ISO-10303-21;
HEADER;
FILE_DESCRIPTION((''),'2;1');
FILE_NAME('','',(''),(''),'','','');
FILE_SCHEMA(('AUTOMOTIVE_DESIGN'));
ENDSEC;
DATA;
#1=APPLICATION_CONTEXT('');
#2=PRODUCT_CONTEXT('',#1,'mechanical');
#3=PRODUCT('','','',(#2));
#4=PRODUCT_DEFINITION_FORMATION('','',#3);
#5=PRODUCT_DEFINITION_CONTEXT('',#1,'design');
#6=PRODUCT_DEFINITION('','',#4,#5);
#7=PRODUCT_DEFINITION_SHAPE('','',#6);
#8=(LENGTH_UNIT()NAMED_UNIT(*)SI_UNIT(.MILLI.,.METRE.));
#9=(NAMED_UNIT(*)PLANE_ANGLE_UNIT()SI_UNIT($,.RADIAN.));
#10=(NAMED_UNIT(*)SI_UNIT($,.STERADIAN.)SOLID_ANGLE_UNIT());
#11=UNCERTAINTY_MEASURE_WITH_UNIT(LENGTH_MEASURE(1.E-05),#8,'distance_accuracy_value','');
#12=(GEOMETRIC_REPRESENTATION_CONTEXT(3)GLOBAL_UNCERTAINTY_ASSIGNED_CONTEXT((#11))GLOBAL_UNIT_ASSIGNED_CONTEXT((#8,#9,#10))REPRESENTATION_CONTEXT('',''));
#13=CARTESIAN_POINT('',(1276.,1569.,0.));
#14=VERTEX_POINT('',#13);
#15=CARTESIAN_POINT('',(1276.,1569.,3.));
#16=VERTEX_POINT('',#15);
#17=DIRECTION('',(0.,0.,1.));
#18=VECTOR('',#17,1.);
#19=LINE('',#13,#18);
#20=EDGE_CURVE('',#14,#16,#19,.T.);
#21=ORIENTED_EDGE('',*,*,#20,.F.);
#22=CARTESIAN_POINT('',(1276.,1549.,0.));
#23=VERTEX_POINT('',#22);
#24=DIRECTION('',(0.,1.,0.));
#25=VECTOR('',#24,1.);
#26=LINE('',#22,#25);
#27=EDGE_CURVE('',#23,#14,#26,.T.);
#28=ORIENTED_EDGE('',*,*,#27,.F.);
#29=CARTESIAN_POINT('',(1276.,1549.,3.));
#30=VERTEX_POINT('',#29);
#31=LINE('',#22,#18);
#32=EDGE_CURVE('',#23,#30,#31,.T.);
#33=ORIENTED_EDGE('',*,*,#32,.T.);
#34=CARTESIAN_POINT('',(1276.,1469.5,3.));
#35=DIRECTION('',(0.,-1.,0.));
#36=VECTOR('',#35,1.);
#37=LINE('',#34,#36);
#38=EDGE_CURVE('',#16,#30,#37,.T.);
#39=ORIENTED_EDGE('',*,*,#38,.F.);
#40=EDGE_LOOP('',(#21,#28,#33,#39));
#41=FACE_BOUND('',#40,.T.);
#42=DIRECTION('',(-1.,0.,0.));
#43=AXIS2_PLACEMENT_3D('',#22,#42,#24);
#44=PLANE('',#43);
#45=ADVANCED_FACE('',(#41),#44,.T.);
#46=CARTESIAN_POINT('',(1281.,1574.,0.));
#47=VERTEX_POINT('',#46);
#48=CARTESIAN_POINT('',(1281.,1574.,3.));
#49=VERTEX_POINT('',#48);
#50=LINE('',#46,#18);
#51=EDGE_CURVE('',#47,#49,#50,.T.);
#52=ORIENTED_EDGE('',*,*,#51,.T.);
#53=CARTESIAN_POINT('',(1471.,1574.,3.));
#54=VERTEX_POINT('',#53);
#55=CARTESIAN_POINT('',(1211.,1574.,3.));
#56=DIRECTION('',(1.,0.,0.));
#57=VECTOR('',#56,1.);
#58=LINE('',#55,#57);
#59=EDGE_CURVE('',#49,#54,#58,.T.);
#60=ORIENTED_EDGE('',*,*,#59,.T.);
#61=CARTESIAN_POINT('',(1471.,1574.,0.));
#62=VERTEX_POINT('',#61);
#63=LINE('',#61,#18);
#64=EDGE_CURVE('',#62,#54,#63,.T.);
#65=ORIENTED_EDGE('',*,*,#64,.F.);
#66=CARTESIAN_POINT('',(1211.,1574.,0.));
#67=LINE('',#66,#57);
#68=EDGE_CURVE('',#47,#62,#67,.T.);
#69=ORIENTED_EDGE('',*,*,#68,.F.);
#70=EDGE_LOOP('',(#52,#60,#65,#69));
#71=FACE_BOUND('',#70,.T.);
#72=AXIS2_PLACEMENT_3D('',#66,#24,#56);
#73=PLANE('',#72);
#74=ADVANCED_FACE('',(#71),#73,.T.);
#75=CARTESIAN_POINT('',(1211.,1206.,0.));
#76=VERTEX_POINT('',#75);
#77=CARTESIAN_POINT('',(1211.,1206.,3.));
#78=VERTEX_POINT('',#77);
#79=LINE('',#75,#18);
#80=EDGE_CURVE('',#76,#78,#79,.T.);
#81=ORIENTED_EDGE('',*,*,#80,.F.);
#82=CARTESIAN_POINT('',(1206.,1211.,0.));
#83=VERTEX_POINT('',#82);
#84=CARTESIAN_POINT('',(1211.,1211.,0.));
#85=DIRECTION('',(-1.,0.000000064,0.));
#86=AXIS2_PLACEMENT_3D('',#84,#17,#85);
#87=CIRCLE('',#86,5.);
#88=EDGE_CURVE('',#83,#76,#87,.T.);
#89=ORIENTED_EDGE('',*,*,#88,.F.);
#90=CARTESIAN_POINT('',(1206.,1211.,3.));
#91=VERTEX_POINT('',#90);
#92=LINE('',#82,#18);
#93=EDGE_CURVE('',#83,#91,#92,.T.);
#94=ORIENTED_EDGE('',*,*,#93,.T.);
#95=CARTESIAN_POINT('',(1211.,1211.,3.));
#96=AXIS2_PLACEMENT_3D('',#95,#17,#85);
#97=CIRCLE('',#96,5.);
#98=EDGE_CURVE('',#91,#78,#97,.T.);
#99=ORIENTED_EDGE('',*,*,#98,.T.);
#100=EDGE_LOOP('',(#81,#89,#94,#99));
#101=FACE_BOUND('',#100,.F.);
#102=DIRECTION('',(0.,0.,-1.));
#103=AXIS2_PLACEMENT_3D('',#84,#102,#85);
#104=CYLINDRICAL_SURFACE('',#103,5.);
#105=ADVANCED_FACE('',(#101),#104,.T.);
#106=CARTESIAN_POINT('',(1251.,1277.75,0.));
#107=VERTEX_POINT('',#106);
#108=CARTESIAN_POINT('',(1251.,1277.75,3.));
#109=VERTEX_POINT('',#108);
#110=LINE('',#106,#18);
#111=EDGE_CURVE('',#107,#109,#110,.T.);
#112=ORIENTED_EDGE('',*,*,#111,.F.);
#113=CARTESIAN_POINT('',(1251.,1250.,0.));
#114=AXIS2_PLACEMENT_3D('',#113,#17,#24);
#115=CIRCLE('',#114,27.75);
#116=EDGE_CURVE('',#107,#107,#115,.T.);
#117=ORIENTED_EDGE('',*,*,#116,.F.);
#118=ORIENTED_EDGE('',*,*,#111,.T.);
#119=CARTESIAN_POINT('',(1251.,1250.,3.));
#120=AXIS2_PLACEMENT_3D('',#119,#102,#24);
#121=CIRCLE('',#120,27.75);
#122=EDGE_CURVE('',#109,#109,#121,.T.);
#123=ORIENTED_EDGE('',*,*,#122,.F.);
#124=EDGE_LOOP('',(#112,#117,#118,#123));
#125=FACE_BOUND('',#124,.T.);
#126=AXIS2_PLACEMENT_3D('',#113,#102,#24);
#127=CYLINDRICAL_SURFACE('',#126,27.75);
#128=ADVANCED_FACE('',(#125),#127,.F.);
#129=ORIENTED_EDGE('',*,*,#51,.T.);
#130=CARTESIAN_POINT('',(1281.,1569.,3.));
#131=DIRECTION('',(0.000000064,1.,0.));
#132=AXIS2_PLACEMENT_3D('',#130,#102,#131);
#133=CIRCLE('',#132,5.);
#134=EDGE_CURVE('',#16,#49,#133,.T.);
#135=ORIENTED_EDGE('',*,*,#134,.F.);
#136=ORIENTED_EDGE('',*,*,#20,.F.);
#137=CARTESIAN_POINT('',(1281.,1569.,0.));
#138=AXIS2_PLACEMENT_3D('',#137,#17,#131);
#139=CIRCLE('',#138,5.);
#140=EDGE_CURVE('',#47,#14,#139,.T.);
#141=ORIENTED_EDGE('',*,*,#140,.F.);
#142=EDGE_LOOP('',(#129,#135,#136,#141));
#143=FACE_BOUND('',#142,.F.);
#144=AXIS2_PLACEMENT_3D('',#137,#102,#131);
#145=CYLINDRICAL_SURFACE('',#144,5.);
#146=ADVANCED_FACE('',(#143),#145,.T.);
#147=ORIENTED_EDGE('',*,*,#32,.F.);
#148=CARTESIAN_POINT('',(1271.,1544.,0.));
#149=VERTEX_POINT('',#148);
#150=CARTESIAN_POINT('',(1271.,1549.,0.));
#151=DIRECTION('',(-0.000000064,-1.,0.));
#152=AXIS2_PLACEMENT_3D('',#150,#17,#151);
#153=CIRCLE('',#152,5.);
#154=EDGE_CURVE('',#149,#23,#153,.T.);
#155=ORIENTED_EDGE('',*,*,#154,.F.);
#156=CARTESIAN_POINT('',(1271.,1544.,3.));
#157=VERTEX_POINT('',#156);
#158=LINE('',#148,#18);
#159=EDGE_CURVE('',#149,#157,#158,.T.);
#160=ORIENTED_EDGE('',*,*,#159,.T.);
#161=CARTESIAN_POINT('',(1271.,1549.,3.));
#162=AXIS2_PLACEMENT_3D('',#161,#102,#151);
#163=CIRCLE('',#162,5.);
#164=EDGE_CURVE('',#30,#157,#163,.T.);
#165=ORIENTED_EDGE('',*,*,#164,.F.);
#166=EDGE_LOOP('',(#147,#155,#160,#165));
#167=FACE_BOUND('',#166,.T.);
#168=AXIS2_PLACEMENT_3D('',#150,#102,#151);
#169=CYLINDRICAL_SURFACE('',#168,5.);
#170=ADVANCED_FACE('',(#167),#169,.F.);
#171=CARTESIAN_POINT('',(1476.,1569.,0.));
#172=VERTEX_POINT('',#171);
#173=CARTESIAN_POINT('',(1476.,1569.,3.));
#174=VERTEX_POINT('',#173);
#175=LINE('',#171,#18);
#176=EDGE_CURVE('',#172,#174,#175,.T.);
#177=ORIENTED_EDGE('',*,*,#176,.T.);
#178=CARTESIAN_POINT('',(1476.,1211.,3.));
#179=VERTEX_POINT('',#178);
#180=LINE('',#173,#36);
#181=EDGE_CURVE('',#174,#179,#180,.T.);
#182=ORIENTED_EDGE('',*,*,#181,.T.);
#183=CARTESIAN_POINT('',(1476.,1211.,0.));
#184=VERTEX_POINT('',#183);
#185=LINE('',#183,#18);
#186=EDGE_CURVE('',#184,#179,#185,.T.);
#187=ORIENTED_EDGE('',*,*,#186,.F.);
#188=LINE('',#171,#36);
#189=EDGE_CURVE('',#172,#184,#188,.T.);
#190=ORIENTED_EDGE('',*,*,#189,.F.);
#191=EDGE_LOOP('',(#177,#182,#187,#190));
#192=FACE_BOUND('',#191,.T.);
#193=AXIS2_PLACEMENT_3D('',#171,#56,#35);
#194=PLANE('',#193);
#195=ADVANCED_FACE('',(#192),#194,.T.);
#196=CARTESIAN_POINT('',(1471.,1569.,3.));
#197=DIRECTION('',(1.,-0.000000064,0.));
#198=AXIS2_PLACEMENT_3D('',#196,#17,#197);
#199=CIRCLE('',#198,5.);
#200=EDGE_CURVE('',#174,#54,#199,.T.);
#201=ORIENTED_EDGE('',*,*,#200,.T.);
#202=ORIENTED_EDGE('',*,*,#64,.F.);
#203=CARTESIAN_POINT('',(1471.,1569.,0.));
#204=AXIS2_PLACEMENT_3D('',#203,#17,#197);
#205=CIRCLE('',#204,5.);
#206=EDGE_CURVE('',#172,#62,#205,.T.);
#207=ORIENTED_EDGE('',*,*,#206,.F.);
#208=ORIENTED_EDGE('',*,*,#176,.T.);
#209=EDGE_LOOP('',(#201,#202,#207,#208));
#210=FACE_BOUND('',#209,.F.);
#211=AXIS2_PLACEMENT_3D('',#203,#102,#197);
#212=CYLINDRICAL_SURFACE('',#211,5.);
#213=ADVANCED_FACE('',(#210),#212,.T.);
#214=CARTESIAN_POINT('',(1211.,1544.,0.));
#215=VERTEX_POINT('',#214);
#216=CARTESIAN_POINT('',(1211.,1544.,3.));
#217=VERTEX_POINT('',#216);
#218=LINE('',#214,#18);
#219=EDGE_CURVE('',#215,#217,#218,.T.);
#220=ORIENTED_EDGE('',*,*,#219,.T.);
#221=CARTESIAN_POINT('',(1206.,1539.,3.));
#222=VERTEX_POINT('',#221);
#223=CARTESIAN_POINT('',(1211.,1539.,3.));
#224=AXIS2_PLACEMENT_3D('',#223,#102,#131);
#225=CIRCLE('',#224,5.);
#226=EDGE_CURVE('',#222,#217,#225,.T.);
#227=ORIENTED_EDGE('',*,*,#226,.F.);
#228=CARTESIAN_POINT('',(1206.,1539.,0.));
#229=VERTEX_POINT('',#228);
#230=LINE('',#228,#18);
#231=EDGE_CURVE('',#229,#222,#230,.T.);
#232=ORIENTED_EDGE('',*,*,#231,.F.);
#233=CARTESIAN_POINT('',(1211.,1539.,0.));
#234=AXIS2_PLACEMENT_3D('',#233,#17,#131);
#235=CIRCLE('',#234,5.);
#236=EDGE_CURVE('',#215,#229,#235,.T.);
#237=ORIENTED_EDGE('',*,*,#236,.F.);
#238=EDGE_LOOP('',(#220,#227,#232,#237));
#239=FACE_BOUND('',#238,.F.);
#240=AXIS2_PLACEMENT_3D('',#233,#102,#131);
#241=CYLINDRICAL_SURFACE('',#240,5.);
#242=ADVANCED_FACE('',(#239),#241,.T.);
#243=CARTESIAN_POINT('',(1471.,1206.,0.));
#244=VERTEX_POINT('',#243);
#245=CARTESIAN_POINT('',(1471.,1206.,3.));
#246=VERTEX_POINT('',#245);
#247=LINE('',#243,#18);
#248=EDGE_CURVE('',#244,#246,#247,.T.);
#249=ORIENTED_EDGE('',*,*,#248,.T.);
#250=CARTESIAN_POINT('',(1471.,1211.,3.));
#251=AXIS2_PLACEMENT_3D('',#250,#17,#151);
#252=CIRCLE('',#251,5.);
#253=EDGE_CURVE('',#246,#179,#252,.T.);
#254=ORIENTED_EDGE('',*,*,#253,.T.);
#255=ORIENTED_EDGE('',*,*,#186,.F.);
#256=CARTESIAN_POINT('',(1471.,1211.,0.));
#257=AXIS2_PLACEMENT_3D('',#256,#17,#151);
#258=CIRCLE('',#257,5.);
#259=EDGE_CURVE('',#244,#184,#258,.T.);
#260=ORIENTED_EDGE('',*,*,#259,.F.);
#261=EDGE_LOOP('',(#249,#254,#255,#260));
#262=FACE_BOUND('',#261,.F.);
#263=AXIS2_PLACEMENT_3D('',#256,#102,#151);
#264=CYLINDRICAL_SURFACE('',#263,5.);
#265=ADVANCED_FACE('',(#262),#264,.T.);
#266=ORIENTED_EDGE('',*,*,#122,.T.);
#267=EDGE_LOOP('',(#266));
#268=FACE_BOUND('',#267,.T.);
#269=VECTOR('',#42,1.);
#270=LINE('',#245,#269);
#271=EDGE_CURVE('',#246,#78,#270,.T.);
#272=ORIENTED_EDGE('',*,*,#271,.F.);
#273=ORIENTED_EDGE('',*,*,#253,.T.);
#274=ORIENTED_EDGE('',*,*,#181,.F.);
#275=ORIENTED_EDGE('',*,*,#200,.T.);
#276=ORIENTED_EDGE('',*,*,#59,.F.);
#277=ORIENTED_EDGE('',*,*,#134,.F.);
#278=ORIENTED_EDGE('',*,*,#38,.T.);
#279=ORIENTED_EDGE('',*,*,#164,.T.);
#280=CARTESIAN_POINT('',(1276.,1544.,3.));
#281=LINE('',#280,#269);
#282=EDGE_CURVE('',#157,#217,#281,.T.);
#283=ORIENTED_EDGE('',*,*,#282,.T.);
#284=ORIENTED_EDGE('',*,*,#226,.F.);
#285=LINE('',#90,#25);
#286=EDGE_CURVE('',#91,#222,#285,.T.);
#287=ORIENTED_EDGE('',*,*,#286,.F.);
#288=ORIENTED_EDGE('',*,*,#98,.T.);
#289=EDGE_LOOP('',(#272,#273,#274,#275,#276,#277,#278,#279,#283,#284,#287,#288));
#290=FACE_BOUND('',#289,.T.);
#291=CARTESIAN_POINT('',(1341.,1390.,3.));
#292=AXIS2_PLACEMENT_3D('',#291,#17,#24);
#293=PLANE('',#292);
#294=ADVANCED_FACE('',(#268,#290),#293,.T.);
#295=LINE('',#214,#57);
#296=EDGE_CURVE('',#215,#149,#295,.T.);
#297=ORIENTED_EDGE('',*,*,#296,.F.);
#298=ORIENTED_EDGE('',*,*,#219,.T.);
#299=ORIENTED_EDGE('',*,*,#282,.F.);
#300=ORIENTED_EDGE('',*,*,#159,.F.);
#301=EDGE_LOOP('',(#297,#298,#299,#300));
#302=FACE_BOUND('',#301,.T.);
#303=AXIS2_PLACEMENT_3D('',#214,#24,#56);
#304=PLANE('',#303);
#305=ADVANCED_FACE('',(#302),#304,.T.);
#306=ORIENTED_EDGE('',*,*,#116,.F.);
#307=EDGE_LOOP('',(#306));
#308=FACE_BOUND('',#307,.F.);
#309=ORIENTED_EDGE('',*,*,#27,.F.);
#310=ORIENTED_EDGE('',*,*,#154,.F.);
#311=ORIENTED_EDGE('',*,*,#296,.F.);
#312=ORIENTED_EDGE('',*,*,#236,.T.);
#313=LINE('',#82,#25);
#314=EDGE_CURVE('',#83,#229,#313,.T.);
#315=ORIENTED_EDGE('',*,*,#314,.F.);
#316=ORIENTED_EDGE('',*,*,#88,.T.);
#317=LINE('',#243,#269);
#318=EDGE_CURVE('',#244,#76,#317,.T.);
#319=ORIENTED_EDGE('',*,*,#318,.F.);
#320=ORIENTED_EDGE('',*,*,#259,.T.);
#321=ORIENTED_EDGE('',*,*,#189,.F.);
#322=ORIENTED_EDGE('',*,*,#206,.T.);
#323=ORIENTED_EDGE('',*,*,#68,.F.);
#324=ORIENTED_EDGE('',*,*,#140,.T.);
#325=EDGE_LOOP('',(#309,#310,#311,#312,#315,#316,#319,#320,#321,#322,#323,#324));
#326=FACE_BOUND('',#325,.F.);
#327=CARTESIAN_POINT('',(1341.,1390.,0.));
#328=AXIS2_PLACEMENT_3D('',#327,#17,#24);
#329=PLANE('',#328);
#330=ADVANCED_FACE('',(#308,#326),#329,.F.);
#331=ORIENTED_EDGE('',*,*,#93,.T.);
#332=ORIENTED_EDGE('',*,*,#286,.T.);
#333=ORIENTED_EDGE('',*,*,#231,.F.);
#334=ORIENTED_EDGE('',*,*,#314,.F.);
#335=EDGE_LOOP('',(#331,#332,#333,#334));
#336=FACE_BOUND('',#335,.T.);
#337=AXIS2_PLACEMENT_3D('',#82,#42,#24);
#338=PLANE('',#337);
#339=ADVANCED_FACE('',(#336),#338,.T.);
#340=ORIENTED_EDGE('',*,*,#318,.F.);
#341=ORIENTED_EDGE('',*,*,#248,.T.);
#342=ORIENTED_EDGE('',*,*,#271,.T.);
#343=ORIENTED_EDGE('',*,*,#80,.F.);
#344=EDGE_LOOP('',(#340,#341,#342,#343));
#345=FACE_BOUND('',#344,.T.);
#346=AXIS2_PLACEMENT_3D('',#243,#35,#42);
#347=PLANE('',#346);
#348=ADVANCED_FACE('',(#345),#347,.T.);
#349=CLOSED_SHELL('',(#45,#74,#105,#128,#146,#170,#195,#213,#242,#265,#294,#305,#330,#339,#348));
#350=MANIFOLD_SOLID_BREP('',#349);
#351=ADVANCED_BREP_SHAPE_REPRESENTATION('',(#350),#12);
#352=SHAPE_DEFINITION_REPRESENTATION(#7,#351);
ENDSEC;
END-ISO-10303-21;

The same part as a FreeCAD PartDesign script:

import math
import FreeCAD as App
import Part
import Sketcher

V = App.Vector

doc = App.newDocument("Part")
body = doc.addObject("PartDesign::Body", "Body")

# Sketch on XY plane
sketch1 = body.newObject("Sketcher::SketchObject", "Sketch")
sketch1.AttachmentSupport = (doc.getObject("XY_Plane"), [""])
sketch1.MapMode = "FlatFace"
sketch1.addGeometry([
    Part.ArcOfCircle(Part.Circle(V(-179, -130, 0), V(0, 0, 1), 5), math.radians(180), math.radians(270)),  # 0
    Part.LineSegment(V(-179, -135, 0), V(179, -135, 0)),  # 1
    Part.ArcOfCircle(Part.Circle(V(179, -130, 0), V(0, 0, 1), 5), math.radians(-90), math.radians(0)),  # 2
    Part.LineSegment(V(184, -130, 0), V(184, 130, 0)),  # 3
    Part.ArcOfCircle(Part.Circle(V(179, 130, 0), V(0, 0, 1), 5), math.radians(0), math.radians(90)),  # 4
    Part.LineSegment(V(179, 135, 0), V(-179, 135, 0)),  # 5
    Part.ArcOfCircle(Part.Circle(V(-179, 130, 0), V(0, 0, 1), 5), math.radians(90), math.radians(180)),  # 6
    Part.LineSegment(V(-184, 130, 0), V(-184, -130, 0)),  # 7
], False)
sketch1.addConstraint([
    Sketcher.Constraint("Tangent", 0, 2, 1, 1),
    Sketcher.Constraint("Tangent", 1, 2, 2, 1),
    Sketcher.Constraint("Tangent", 2, 2, 3, 1),
    Sketcher.Constraint("Tangent", 3, 2, 4, 1),
    Sketcher.Constraint("Tangent", 4, 2, 5, 1),
    Sketcher.Constraint("Tangent", 5, 2, 6, 1),
    Sketcher.Constraint("Tangent", 6, 2, 7, 1),
    Sketcher.Constraint("Tangent", 7, 2, 0, 1),
    Sketcher.Constraint("Horizontal", 1),
    Sketcher.Constraint("Vertical", 3),
    Sketcher.Constraint("Horizontal", 5),
    Sketcher.Constraint("Vertical", 7),
    Sketcher.Constraint("Equal", 0, 2),
    Sketcher.Constraint("Equal", 2, 4),
    Sketcher.Constraint("Equal", 4, 6),
    Sketcher.Constraint("Symmetric", 0, 3, 4, 3, -1, 1),
    Sketcher.Constraint("Radius", 0, 5.0),
    Sketcher.Constraint("DistanceX", 1, 1, 1, 2, 358.0),
    Sketcher.Constraint("DistanceY", 3, 1, 3, 2, 260.0),
])
pad1 = body.newObject("PartDesign::Pad", "Pad")
pad1.Profile = sketch1
pad1.Length = 3

# Sketch on XY plane
sketch2 = body.newObject("Sketcher::SketchObject", "Sketch001")
sketch2.AttachmentSupport = (doc.getObject("XY_Plane"), [""])
sketch2.MapMode = "FlatFace"
sketch2.addGeometry(Part.Circle(V(-140, 90, 0), V(0, 0, 1), 28), False)
sketch2.addConstraint([
    Sketcher.Constraint("Diameter", 0, 55.5),
    Sketcher.Constraint("DistanceX", 0, 3, -1, 1, 140.0),
    Sketcher.Constraint("DistanceY", -1, 1, 0, 3, 90.0),
])
pocket1 = body.newObject("PartDesign::Pocket", "Pocket")
pocket1.Profile = sketch2
pocket1.Type = "ThroughAll"
pocket1.Midplane = True

# Sketch on XY plane
sketch3 = body.newObject("Sketcher::SketchObject", "Sketch002")
sketch3.AttachmentSupport = (doc.getObject("XY_Plane"), [""])
sketch3.MapMode = "FlatFace"
sketch3.addGeometry([
    Part.LineSegment(V(184, 135, 0), V(149, 135, 0)),  # 0
    Part.ArcOfCircle(Part.Circle(V(149, 130, 0), V(0, 0, 1), 5), math.radians(0), math.radians(90)),  # 1
    Part.LineSegment(V(154, 130, 0), V(154, 70, 0)),  # 2
    Part.ArcOfCircle(Part.Circle(V(159, 70, 0), V(0, 0, 1), 5), math.radians(180), math.radians(270)),  # 3
    Part.LineSegment(V(159, 65, 0), V(179, 65, 0)),  # 4
    Part.ArcOfCircle(Part.Circle(V(179, 60, 0), V(0, 0, 1), 5), math.radians(0), math.radians(90)),  # 5
    Part.LineSegment(V(184, 60, 0), V(184, 135, 0)),  # 6
], False)
sketch3.addConstraint([
    Sketcher.Constraint("Tangent", 0, 2, 1, 2),
    Sketcher.Constraint("Tangent", 1, 1, 2, 1),
    Sketcher.Constraint("Tangent", 2, 2, 3, 1),
    Sketcher.Constraint("Tangent", 3, 2, 4, 1),
    Sketcher.Constraint("Tangent", 4, 2, 5, 2),
    Sketcher.Constraint("Tangent", 5, 1, 6, 1),
    Sketcher.Constraint("Coincident", 6, 2, 0, 1),
    Sketcher.Constraint("Horizontal", 0),
    Sketcher.Constraint("Vertical", 2),
    Sketcher.Constraint("Horizontal", 4),
    Sketcher.Constraint("Vertical", 6),
    Sketcher.Constraint("Equal", 1, 3),
    Sketcher.Constraint("Equal", 3, 5),
    Sketcher.Constraint("Radius", 1, 5.0),
    Sketcher.Constraint("DistanceX", 0, 2, 0, 1, 35.0),
    Sketcher.Constraint("DistanceY", 2, 2, 2, 1, 60.0),
    Sketcher.Constraint("DistanceX", -1, 1, 1, 3, 149.0),
    Sketcher.Constraint("DistanceY", -1, 1, 1, 3, 130.0),
])
pocket2 = body.newObject("PartDesign::Pocket", "Pocket001")
pocket2.Profile = sketch3
pocket2.Type = "ThroughAll"
pocket2.Midplane = True
body2 = doc.addObject("PartDesign::Body", "Body001")
doc.recompute()

body.Placement = App.Placement(V(1341, 1390, 0), App.Rotation(V(0, 0, 1), 90))
boolean = body2.newObject("PartDesign::Boolean", "Boolean")
boolean.Type = "Fuse"
boolean.addObjects([body])

doc.recompute()
